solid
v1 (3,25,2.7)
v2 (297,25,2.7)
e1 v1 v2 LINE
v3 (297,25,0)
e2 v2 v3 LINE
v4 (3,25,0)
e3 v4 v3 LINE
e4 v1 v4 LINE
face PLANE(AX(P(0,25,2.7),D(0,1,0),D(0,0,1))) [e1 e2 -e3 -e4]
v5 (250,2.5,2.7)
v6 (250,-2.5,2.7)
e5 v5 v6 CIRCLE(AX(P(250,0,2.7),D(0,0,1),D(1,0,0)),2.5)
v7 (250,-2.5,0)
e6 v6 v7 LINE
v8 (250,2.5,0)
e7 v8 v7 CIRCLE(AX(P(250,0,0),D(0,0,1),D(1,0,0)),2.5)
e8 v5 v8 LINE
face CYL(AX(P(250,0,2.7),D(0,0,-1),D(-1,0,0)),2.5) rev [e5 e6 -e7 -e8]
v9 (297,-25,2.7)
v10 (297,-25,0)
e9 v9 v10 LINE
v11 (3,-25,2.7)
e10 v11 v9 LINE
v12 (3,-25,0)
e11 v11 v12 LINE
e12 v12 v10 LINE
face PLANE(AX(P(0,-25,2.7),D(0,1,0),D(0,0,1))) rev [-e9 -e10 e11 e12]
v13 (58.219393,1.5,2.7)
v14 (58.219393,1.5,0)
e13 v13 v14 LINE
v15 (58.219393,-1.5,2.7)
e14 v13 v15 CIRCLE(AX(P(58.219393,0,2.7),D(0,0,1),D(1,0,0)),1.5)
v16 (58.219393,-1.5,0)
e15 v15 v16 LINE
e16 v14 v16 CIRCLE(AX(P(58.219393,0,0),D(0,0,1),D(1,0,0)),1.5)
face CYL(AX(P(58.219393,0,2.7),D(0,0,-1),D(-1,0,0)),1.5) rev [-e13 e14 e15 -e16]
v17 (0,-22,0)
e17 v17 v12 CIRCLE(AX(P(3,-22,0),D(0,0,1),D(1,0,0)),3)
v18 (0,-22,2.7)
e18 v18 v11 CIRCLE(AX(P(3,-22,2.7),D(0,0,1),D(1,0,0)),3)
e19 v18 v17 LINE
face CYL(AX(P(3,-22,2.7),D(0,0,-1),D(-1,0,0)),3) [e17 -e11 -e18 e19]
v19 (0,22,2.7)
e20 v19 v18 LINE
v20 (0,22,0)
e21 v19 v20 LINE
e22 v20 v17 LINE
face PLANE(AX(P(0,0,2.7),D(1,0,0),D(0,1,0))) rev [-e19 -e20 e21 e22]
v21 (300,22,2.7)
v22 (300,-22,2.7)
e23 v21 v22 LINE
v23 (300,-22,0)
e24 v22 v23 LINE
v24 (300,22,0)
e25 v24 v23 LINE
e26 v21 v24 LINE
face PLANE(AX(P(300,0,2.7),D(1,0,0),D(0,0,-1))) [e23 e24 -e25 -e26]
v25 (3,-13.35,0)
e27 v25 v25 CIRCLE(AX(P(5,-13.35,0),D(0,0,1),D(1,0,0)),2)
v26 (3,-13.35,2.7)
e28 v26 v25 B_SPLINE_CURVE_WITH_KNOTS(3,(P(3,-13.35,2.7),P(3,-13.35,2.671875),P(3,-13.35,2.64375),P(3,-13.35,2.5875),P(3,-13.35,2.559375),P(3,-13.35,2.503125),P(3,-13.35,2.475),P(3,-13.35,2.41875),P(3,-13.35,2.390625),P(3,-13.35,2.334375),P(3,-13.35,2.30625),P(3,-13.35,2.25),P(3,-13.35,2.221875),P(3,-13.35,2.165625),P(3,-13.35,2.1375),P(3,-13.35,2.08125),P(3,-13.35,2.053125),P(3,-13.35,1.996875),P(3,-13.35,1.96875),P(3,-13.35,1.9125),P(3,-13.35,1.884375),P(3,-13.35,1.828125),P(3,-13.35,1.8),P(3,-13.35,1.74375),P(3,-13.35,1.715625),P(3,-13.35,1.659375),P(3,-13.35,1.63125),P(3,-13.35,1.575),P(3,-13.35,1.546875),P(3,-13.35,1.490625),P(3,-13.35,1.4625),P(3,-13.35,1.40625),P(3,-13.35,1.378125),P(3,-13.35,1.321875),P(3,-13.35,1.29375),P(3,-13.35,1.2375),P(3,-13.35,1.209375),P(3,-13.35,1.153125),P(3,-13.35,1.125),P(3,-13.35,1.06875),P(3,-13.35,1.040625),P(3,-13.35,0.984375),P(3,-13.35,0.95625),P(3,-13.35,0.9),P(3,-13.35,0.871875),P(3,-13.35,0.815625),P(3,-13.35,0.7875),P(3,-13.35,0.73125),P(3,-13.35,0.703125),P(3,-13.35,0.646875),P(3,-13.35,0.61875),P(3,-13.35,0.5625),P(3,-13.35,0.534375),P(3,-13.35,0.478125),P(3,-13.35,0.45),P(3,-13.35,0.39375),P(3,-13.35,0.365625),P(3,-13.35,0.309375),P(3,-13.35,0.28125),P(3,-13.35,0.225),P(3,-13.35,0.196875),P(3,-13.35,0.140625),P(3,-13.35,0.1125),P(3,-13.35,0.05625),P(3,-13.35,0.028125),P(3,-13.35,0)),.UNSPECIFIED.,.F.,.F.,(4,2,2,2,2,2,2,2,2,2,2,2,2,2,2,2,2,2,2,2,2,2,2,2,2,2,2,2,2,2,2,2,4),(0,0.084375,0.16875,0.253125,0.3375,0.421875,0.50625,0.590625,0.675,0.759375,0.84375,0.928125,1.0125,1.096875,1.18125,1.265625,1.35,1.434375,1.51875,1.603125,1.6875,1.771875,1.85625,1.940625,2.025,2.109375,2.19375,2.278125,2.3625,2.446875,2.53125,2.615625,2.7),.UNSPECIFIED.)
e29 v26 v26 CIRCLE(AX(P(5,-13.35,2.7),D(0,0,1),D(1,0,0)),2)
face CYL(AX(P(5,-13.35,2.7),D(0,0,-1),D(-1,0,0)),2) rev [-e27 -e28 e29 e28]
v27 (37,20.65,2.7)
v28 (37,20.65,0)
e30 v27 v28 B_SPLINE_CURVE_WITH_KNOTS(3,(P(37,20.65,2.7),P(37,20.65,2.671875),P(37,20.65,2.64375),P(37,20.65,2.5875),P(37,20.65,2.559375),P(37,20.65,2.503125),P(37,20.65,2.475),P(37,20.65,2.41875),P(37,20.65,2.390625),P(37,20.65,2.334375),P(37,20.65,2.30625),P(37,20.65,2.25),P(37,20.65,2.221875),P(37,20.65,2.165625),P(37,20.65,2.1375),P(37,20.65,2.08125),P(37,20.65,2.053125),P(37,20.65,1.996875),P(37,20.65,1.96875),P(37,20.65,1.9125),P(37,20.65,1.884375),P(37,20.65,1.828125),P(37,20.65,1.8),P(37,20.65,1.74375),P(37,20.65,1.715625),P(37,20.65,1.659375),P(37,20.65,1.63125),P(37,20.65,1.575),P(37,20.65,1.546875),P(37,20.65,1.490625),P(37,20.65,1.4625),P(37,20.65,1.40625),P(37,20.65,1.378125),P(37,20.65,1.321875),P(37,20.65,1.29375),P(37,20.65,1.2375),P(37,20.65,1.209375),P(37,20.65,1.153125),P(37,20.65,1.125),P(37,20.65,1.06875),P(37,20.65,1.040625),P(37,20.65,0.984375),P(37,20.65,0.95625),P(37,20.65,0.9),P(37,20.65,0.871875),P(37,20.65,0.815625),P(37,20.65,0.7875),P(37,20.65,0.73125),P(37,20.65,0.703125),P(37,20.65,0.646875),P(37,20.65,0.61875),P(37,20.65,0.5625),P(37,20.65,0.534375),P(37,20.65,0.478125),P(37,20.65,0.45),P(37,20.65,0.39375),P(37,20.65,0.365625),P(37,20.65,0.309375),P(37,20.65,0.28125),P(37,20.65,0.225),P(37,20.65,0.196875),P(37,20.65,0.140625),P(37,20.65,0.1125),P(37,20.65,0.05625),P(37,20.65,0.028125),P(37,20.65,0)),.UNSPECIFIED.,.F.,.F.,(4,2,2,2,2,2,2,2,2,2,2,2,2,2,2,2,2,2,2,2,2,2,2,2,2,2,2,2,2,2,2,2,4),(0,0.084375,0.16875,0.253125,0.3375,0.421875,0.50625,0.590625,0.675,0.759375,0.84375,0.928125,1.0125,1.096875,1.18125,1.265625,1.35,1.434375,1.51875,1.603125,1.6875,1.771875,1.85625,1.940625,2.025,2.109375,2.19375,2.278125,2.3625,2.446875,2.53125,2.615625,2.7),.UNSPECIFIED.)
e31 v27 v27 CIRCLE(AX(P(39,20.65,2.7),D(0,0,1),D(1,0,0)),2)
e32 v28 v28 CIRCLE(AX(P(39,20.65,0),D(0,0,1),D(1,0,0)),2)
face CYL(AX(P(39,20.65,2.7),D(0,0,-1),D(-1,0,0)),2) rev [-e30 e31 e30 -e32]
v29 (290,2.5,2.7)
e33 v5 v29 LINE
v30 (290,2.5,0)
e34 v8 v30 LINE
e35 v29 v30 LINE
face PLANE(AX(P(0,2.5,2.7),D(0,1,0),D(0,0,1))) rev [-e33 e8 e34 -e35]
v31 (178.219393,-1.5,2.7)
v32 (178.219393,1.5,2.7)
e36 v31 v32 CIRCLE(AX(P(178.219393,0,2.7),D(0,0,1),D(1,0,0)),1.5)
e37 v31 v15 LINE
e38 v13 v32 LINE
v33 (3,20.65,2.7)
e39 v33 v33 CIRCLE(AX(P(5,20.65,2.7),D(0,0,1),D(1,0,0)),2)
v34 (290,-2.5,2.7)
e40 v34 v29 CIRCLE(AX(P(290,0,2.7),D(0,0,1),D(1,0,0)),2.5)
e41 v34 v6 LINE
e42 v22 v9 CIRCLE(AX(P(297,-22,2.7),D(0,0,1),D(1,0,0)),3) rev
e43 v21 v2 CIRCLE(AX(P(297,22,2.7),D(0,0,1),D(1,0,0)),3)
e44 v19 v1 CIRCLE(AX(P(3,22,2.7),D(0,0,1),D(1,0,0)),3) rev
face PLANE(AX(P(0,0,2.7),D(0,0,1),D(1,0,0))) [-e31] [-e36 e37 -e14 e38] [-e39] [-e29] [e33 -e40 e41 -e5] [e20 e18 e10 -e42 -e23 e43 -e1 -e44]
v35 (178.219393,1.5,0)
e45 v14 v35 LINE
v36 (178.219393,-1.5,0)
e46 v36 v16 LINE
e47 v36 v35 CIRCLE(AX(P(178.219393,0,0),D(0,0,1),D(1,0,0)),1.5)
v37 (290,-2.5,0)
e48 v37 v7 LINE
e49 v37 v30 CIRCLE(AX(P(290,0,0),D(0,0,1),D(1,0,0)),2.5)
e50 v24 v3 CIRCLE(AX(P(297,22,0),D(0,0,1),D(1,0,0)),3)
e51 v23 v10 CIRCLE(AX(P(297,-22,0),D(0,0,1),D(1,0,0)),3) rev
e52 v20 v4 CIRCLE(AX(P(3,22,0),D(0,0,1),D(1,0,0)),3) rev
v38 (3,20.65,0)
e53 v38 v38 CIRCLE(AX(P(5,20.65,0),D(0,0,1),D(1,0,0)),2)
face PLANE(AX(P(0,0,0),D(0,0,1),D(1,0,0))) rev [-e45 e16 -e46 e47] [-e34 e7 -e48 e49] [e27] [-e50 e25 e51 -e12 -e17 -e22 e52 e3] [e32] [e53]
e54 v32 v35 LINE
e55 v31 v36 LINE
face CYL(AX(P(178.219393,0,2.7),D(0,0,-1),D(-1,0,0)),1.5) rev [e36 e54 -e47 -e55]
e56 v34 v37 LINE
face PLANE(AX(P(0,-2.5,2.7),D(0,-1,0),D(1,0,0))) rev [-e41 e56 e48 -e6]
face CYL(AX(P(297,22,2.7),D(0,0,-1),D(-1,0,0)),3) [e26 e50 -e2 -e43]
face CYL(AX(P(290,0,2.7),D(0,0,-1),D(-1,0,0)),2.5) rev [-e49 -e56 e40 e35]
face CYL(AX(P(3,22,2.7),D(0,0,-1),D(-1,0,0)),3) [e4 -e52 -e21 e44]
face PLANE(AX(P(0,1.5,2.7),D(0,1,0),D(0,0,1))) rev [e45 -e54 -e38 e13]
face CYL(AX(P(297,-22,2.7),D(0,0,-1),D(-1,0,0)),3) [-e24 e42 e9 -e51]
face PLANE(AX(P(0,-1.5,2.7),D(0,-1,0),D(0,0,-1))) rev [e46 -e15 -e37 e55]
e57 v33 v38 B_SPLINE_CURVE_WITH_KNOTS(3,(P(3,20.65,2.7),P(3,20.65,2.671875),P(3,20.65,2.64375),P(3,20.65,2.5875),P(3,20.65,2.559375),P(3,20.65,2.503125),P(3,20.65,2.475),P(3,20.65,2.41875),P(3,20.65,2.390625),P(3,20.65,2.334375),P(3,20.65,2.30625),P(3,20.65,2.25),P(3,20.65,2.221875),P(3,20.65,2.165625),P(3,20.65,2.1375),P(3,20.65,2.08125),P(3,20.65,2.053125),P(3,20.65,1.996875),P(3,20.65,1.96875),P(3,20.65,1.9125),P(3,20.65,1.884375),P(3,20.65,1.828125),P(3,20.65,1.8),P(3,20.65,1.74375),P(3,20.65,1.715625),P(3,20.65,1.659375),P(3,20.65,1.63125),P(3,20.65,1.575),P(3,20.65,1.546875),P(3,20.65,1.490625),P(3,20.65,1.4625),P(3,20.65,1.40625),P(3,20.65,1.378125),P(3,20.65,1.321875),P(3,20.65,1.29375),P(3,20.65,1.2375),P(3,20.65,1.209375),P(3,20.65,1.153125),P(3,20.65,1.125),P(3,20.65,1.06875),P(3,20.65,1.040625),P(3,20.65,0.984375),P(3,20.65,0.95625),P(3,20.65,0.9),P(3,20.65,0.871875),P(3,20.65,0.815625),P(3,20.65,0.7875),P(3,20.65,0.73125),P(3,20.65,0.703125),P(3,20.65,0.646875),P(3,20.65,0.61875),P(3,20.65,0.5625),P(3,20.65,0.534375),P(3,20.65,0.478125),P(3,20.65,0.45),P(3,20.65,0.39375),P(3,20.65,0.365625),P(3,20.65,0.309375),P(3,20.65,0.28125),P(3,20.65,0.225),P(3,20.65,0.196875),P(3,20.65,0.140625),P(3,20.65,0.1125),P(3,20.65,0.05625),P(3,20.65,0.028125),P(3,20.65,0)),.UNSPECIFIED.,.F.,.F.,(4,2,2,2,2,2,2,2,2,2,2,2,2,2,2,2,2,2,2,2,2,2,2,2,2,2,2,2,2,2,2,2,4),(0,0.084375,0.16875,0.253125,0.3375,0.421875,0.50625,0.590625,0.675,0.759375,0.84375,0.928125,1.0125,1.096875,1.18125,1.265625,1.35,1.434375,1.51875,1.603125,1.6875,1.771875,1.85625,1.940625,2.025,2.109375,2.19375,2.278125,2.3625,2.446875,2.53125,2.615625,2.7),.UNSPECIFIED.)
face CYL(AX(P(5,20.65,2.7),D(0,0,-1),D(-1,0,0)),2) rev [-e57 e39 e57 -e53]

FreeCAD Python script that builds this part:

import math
import FreeCAD as App
import Part
import Sketcher
from FreeCAD import Vector
Q = App.Units.Quantity

doc = App.newDocument("Part")
body = doc.addObject("PartDesign::Body", "Body")

sketch1 = doc.addObject("Sketcher::SketchObject", "Sketch")
body.addObject(sketch1)
sketch1.AttachmentSupport = (doc.XY_Plane, [""])
sketch1.MapMode = "FlatFace"
sketch1.addGeometry(Part.LineSegment(Vector(0, 22, 0), Vector(0, -22, 0)), False)
sketch1.addGeometry(Part.ArcOfCircle(Part.Circle(Vector(3, -22, 0), Vector(0, 0, 1), 3), math.radians(180), math.radians(270)), False)
sketch1.addGeometry(Part.LineSegment(Vector(3, -25, 0), Vector(297, -25, 0)), False)
sketch1.addGeometry(Part.ArcOfCircle(Part.Circle(Vector(297, -22, 0), Vector(0, 0, 1), 3), math.radians(-90), math.radians(0)), False)
sketch1.addGeometry(Part.LineSegment(Vector(300, -22, 0), Vector(300, 22, 0)), False)
sketch1.addGeometry(Part.ArcOfCircle(Part.Circle(Vector(297, 22, 0), Vector(0, 0, 1), 3), math.radians(0), math.radians(90)), False)
sketch1.addGeometry(Part.LineSegment(Vector(297, 25, 0), Vector(3, 25, 0)), False)
sketch1.addGeometry(Part.ArcOfCircle(Part.Circle(Vector(3, 22, 0), Vector(0, 0, 1), 3), math.radians(90), math.radians(180)), False)
sketch1.addGeometry(Part.Circle(Vector(5, -13.3, 0), Vector(0, 0, 1), 2), False)
sketch1.addGeometry(Part.ArcOfCircle(Part.Circle(Vector(58.2, 0, 0), Vector(0, 0, 1), 1.5), math.radians(90), math.radians(270)), False)
sketch1.addGeometry(Part.LineSegment(Vector(58.2, 1.5, 0), Vector(178.2, 1.5, 0)), False)
sketch1.addGeometry(Part.ArcOfCircle(Part.Circle(Vector(178.2, 0, 0), Vector(0, 0, 1), 1.5), math.radians(-90), math.radians(90)), False)
sketch1.addGeometry(Part.LineSegment(Vector(178.2, -1.5, 0), Vector(58.2, -1.5, 0)), False)
sketch1.addGeometry(Part.ArcOfCircle(Part.Circle(Vector(250, 0, 0), Vector(0, 0, 1), 2.5), math.radians(90), math.radians(270)), False)
sketch1.addGeometry(Part.LineSegment(Vector(250, 2.5, 0), Vector(290, 2.5, 0)), False)
sketch1.addGeometry(Part.ArcOfCircle(Part.Circle(Vector(290, 0, 0), Vector(0, 0, 1), 2.5), math.radians(-90), math.radians(90)), False)
sketch1.addGeometry(Part.LineSegment(Vector(290, -2.5, 0), Vector(250, -2.5, 0)), False)
sketch1.addGeometry(Part.Circle(Vector(5, 20.6, 0), Vector(0, 0, 1), 2), False)
sketch1.addGeometry(Part.Circle(Vector(39, 20.6, 0), Vector(0, 0, 1), 2), False)
sketch1.addConstraint(Sketcher.Constraint("Tangent", 0, 2, 1, 1))
sketch1.addConstraint(Sketcher.Constraint("Tangent", 1, 2, 2, 1))
sketch1.addConstraint(Sketcher.Constraint("Tangent", 2, 2, 3, 1))
sketch1.addConstraint(Sketcher.Constraint("Tangent", 3, 2, 4, 1))
sketch1.addConstraint(Sketcher.Constraint("Tangent", 4, 2, 5, 1))
sketch1.addConstraint(Sketcher.Constraint("Tangent", 5, 2, 6, 1))
sketch1.addConstraint(Sketcher.Constraint("Tangent", 6, 2, 7, 1))
sketch1.addConstraint(Sketcher.Constraint("Tangent", 7, 2, 0, 1))
sketch1.addConstraint(Sketcher.Constraint("Tangent", 9, 1, 10, 1))
sketch1.addConstraint(Sketcher.Constraint("Tangent", 10, 2, 11, 2))
sketch1.addConstraint(Sketcher.Constraint("Tangent", 11, 1, 12, 1))
sketch1.addConstraint(Sketcher.Constraint("Tangent", 12, 2, 9, 2))
sketch1.addConstraint(Sketcher.Constraint("Tangent", 13, 1, 14, 1))
sketch1.addConstraint(Sketcher.Constraint("Tangent", 14, 2, 15, 2))
sketch1.addConstraint(Sketcher.Constraint("Tangent", 15, 1, 16, 1))
sketch1.addConstraint(Sketcher.Constraint("Tangent", 16, 2, 13, 2))
sketch1.addConstraint(Sketcher.Constraint("Vertical", 0))
sketch1.addConstraint(Sketcher.Constraint("Horizontal", 2))
sketch1.addConstraint(Sketcher.Constraint("Vertical", 4))
sketch1.addConstraint(Sketcher.Constraint("Horizontal", 6))
sketch1.addConstraint(Sketcher.Constraint("Horizontal", 10))
sketch1.addConstraint(Sketcher.Constraint("Horizontal", 12))
sketch1.addConstraint(Sketcher.Constraint("Horizontal", 14))
sketch1.addConstraint(Sketcher.Constraint("Horizontal", 16))
sketch1.addConstraint(Sketcher.Constraint("Equal", 1, 3))
sketch1.addConstraint(Sketcher.Constraint("Equal", 3, 5))
sketch1.addConstraint(Sketcher.Constraint("Equal", 5, 7))
sketch1.addConstraint(Sketcher.Constraint("Equal", 8, 17))
sketch1.addConstraint(Sketcher.Constraint("Equal", 17, 18))
sketch1.addConstraint(Sketcher.Constraint("Symmetric", 0, 2, 7, 2, -1, 1))
sketch1.addConstraint(Sketcher.Constraint("PointOnObject", 9, 3, -1))
sketch1.addConstraint(Sketcher.Constraint("PointOnObject", 13, 3, -1))
sketch1.addConstraint(Sketcher.Constraint("Horizontal", 17, 3, 18, 3))
sketch1.addConstraint(Sketcher.Constraint("Vertical", 8, 3, 17, 3))
sketch1.addConstraint(Sketcher.Constraint("Diameter", 8, Q("4 mm")))
sketch1.addConstraint(Sketcher.Constraint("Radius", 1, Q("3 mm")))
sketch1.addConstraint(Sketcher.Constraint("Radius", 9, Q("1.5 mm")))
sketch1.addConstraint(Sketcher.Constraint("Radius", 13, Q("2.5 mm")))
sketch1.addConstraint(Sketcher.Constraint("DistanceX", 2, 1, 2, 2, Q("294 mm")))
sketch1.addConstraint(Sketcher.Constraint("DistanceX", 10, 1, 10, 2, Q("120 mm")))
sketch1.addConstraint(Sketcher.Constraint("DistanceX", 14, 1, 14, 2, Q("40 mm")))
sketch1.addConstraint(Sketcher.Constraint("DistanceY", 0, 2, 0, 1, Q("44 mm")))
sketch1.addConstraint(Sketcher.Constraint("DistanceX", -1, 1, 8, 3, Q("5 mm")))
sketch1.addConstraint(Sketcher.Constraint("DistanceX", -1, 1, 13, 3, Q("250 mm")))
sketch1.addConstraint(Sketcher.Constraint("DistanceX", -1, 1, 18, 3, Q("39 mm")))
sketch1.addConstraint(Sketcher.Constraint("DistanceY", 8, 3, 17, 3, Q("34 mm")))
sketch1.addConstraint(Sketcher.Constraint("DistanceY", 8, 3, -1, 1, Q("13.35 mm")))
sketch1.addConstraint(Sketcher.Constraint("DistanceX", -1, 1, 9, 3, Q("58.219393 mm")))
pad1 = doc.addObject("PartDesign::Pad", "Pad")
body.addObject(pad1)
pad1.Profile = sketch1
pad1.Length = 2.7

doc.recompute()
